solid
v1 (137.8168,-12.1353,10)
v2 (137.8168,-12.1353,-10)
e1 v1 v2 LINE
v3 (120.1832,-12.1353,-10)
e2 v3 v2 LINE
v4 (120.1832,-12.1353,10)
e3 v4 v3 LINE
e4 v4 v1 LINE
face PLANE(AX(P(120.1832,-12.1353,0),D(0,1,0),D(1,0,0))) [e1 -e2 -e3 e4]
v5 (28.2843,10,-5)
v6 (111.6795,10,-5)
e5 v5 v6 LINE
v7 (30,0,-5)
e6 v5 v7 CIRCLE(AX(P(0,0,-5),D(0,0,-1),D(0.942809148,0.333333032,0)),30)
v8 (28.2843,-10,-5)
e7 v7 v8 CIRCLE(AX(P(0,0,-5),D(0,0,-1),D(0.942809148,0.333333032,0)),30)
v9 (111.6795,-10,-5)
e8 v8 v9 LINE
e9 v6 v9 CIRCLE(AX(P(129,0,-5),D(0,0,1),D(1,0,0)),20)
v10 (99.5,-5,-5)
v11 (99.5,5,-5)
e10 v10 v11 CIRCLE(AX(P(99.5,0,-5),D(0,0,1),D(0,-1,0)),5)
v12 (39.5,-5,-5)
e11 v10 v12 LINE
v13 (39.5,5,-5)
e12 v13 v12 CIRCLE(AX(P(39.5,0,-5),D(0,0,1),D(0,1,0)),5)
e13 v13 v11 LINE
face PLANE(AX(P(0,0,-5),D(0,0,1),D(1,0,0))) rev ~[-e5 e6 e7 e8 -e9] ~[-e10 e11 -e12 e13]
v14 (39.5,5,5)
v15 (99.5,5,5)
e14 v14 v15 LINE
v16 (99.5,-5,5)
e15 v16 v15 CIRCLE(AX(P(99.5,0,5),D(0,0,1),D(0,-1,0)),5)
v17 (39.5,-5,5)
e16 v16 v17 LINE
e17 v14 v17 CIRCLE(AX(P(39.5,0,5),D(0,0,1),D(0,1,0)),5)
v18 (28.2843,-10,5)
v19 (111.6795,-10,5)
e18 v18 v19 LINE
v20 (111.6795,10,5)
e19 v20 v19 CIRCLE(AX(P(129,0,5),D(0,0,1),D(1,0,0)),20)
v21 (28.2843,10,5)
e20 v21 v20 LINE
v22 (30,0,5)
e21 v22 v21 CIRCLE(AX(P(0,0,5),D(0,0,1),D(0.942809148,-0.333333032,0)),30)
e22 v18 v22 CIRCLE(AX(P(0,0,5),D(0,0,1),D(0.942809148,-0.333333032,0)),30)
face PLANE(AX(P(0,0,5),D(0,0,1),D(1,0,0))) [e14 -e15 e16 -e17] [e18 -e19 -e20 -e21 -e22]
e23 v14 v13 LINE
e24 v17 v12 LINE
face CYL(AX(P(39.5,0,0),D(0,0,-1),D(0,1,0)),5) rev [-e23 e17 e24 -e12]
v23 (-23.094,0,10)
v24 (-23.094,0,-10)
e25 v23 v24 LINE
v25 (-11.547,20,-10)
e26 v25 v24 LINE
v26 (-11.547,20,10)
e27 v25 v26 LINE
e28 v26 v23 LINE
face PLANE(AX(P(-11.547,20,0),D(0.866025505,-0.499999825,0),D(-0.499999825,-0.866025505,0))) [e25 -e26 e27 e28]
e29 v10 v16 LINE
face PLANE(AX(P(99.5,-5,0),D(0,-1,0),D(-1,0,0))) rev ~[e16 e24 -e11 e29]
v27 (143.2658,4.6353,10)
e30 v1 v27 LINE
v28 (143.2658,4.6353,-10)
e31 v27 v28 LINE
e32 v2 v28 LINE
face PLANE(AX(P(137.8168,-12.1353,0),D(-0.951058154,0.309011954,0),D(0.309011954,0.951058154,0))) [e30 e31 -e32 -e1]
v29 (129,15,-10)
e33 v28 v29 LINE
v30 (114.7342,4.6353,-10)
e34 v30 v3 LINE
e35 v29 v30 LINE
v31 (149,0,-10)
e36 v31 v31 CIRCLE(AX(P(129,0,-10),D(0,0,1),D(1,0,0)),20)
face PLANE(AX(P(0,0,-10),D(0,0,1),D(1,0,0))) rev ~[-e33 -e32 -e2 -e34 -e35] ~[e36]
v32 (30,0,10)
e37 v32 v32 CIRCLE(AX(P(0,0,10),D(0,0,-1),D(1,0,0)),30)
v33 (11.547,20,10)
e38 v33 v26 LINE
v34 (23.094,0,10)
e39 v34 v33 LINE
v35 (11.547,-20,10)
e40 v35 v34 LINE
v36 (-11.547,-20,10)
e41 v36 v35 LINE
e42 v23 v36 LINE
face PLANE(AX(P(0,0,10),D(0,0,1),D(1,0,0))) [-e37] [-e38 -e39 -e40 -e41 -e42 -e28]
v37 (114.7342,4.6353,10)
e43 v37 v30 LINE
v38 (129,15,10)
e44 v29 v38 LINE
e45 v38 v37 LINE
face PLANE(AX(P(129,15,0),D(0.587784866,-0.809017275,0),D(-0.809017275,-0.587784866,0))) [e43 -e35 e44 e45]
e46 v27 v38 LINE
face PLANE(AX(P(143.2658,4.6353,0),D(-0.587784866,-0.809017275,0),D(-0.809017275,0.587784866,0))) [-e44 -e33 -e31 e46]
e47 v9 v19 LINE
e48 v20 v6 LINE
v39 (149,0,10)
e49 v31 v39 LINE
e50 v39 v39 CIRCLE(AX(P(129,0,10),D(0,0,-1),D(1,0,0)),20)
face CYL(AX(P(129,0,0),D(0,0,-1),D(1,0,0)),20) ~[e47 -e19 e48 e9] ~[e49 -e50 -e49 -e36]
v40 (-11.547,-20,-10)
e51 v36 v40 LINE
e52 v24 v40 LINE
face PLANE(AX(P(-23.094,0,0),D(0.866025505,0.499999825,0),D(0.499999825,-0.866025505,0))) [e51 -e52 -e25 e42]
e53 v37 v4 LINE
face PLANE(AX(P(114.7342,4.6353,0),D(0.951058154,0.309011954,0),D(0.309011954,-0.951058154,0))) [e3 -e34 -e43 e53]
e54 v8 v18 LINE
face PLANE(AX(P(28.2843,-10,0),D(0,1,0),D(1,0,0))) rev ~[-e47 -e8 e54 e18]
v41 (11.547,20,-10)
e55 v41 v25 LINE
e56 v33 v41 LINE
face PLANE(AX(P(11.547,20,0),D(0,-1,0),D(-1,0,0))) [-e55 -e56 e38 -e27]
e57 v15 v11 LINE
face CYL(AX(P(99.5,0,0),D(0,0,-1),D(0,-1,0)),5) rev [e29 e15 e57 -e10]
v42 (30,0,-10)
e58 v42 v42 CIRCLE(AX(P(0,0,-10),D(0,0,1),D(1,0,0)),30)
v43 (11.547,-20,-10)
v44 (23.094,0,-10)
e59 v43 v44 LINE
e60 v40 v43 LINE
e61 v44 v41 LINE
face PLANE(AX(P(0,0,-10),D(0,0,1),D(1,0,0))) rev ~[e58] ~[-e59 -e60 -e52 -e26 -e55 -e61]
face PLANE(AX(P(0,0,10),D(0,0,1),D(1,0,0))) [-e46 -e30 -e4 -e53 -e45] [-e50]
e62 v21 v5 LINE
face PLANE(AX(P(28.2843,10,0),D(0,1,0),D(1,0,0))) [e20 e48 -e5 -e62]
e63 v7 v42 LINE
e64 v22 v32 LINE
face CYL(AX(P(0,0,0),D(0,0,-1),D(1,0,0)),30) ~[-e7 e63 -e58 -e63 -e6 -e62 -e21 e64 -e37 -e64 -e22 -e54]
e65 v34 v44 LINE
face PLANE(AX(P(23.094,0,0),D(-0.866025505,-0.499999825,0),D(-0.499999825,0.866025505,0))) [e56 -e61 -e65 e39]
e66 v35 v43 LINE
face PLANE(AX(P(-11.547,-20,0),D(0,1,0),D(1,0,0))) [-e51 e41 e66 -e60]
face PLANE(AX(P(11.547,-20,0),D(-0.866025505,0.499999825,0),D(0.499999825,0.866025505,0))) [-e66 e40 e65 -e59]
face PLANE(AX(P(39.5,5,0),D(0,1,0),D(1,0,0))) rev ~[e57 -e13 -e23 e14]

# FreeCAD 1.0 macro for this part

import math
import FreeCAD as App
import Part
import Sketcher
Q = App.Units.Quantity


def add_polygon(sketch, points):
    """Adds a closed chain of lines whose ends are joined by coincident constraints."""
    first, n = sketch.GeometryCount, len(points)
    for a, b in zip(points, points[1:] + points[:1]):
        sketch.addGeometry(Part.LineSegment(App.Vector(*a, 0), App.Vector(*b, 0)), False)
    for i in range(n):
        sketch.addConstraint(Sketcher.Constraint("Coincident", first + i, 2, first + (i + 1) % n, 1))

doc = App.newDocument("Part")
body = doc.addObject("PartDesign::Body", "Body")
body.AllowCompound = True

# Sketch on XY plane
sketch1 = body.newObject("Sketcher::SketchObject", "Sketch")
sketch1.AttachmentSupport = (doc.getObject("XY_Plane"), [""])
sketch1.MapMode = "FlatFace"
sketch1.addGeometry(Part.Circle(App.Vector(0, 0, 0), App.Vector(0, 0, 1), 30), False)  # 0
add_polygon(sketch1, [(-23, 0), (-12, 20), (12, 20), (23, 0), (12, -20), (-12, -20)])  # lines 1-6
sketch1.addGeometry(Part.Circle(App.Vector(129, 0, 0), App.Vector(0, 0, 1), 20), False)  # 7
add_polygon(sketch1, [(115, 5), (129, 15), (143, 5), (138, -12), (120, -12)])  # lines 8-12
sketch1.addConstraint(Sketcher.Constraint("Horizontal", 2))
sketch1.addConstraint(Sketcher.Constraint("Horizontal", 5))
sketch1.addConstraint(Sketcher.Constraint("Horizontal", 11))
sketch1.addConstraint(Sketcher.Constraint("Coincident", 0, 3, -1, 1))
sketch1.addConstraint(Sketcher.Constraint("Symmetric", 1, 2, 4, 2, -1, 1))
sketch1.addConstraint(Sketcher.Constraint("Symmetric", 3, 2, 6, 2, -1, 1))
sketch1.addConstraint(Sketcher.Constraint("PointOnObject", 7, 3, -1))
sketch1.addConstraint(Sketcher.Constraint("PointOnObject", 3, 2, -1))
sketch1.addConstraint(Sketcher.Constraint("Parallel", 3, 6))
sketch1.addConstraint(Sketcher.Constraint("Horizontal", 9, 2, 12, 2))
sketch1.addConstraint(Sketcher.Constraint("Vertical", 2, 2, 4, 2))
sketch1.addConstraint(Sketcher.Constraint("Vertical", 7, 3, 8, 2))
sketch1.addConstraint(Sketcher.Constraint("Equal", 8, 9))
sketch1.addConstraint(Sketcher.Constraint("Equal", 9, 10))
sketch1.addConstraint(Sketcher.Constraint("Equal", 10, 12))
sketch1.addConstraint(Sketcher.Constraint("Diameter", 0, 60.0))
sketch1.addConstraint(Sketcher.Constraint("Diameter", 7, 40.0))
sketch1.addConstraint(Sketcher.Constraint("Angle", 1, Q("60 deg")))
sketch1.addConstraint(Sketcher.Constraint("DistanceX", -1, 1, 7, 3, 129.0))
sketch1.addConstraint(Sketcher.Constraint("DistanceY", -1, 1, 1, 2, 20.0))
sketch1.addConstraint(Sketcher.Constraint("DistanceY", -1, 1, 8, 2, 15.0))
sketch1.addConstraint(Sketcher.Constraint("Angle", 8, Q("36 deg")))
sketch1.addConstraint(Sketcher.Constraint("Angle", 10, Q("-107.9997 deg")))
sketch1.addConstraint(Sketcher.Constraint("DistanceX", 2, 1, 2, 2, 23.094))
sketch1.addConstraint(Sketcher.Constraint("DistanceX", 11, 2, 11, 1, 17.6336))
pad1 = body.newObject("PartDesign::Pad", "Pad")
pad1.Profile = sketch1
pad1.Length = 20
pad1.Midplane = True

# Sketch on XY plane
sketch2 = body.newObject("Sketcher::SketchObject", "Sketch001")
sketch2.AttachmentSupport = (doc.getObject("XY_Plane"), [""])
sketch2.MapMode = "FlatFace"
sketch2.addGeometry(Part.ArcOfCircle(Part.Circle(App.Vector(0, 0, 0), App.Vector(0, 0, 1), 30), math.radians(-19), math.radians(19)), False)
sketch2.addGeometry(Part.LineSegment(App.Vector(28, -10, 0), App.Vector(112, -10, 0)), False)
sketch2.addGeometry(Part.ArcOfCircle(Part.Circle(App.Vector(129, 0, 0), App.Vector(0, 0, 1), 20), math.radians(150), math.radians(210)), False)
sketch2.addGeometry(Part.LineSegment(App.Vector(112, 10, 0), App.Vector(28, 10, 0)), False)
sketch2.addGeometry(Part.ArcOfCircle(Part.Circle(App.Vector(100, 0, 0), App.Vector(0, 0, 1), 5), math.radians(-90), math.radians(90)), False)
sketch2.addGeometry(Part.LineSegment(App.Vector(100, -5, 0), App.Vector(40, -5, 0)), False)
sketch2.addGeometry(Part.ArcOfCircle(Part.Circle(App.Vector(40, 0, 0), App.Vector(0, 0, 1), 5), math.radians(90), math.radians(270)), False)
sketch2.addGeometry(Part.LineSegment(App.Vector(40, 5, 0), App.Vector(100, 5, 0)), False)
sketch2.addConstraint(Sketcher.Constraint("Coincident", 0, 1, 1, 1))
sketch2.addConstraint(Sketcher.Constraint("Coincident", 1, 2, 2, 2))
sketch2.addConstraint(Sketcher.Constraint("Coincident", 2, 1, 3, 1))
sketch2.addConstraint(Sketcher.Constraint("Coincident", 3, 2, 0, 2))
sketch2.addConstraint(Sketcher.Constraint("Tangent", 4, 1, 5, 1))
sketch2.addConstraint(Sketcher.Constraint("Tangent", 5, 2, 6, 2))
sketch2.addConstraint(Sketcher.Constraint("Tangent", 6, 1, 7, 1))
sketch2.addConstraint(Sketcher.Constraint("Tangent", 7, 2, 4, 2))
sketch2.addConstraint(Sketcher.Constraint("Horizontal", 1))
sketch2.addConstraint(Sketcher.Constraint("Horizontal", 3))
sketch2.addConstraint(Sketcher.Constraint("Horizontal", 5))
sketch2.addConstraint(Sketcher.Constraint("Horizontal", 7))
sketch2.addConstraint(Sketcher.Constraint("Coincident", 0, 3, -1, 1))
sketch2.addConstraint(Sketcher.Constraint("Symmetric", 1, 2, 2, 1, -1))
sketch2.addConstraint(Sketcher.Constraint("PointOnObject", 4, 3, -1))
sketch2.addConstraint(Sketcher.Constraint("Radius", 0, 30.0))
sketch2.addConstraint(Sketcher.Constraint("Radius", 2, 20.0))
sketch2.addConstraint(Sketcher.Constraint("Radius", 4, 5.0))
sketch2.addConstraint(Sketcher.Constraint("DistanceX", 5, 2, 5, 1, 60.0))
sketch2.addConstraint(Sketcher.Constraint("DistanceX", -1, 1, 2, 3, 129.0))
sketch2.addConstraint(Sketcher.Constraint("DistanceY", 0, 1, -1, 1, 10.0))
sketch2.addConstraint(Sketcher.Constraint("DistanceX", -1, 1, 4, 3, 99.5))
pad2 = body.newObject("PartDesign::Pad", "Pad001")
pad2.Profile = sketch2
pad2.Length = 10
pad2.Midplane = True

doc.recompute()
